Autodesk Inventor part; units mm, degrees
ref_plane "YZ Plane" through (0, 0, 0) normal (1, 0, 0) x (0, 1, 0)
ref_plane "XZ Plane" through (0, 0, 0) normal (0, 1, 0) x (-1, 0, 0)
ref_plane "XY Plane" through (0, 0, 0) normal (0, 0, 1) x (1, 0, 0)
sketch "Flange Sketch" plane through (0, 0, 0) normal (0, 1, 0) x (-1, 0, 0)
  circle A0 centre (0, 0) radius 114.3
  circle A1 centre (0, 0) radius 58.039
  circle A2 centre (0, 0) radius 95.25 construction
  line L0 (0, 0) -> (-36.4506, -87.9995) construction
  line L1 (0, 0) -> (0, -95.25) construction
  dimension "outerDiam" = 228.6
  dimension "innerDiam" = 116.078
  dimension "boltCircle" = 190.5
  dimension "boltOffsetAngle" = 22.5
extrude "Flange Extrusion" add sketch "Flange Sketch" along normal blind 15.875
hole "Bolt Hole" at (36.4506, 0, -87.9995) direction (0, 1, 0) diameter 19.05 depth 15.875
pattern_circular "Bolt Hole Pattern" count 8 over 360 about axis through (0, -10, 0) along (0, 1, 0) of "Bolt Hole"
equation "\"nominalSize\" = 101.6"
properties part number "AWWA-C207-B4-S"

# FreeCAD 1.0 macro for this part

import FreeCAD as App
import Part
import Sketcher
from FreeCAD import Vector
Q = App.Units.Quantity

doc = App.newDocument("Part")
params = doc.addObject("Spreadsheet::Sheet", "Params")
for row, (alias, value) in enumerate([
    ("sketch1_diameter", "9 in"),
    ("sketch1_diameter2", "4.57 in"),
    ("pad1_length", "0.625 in"),
    ("sketch2_diameter", "0.75 in"),
    ("hole_diameter", "0.75 in"),
    ("hole_depth", "0.625 in"),
], start=1):
    params.set(f"A{row}", alias)
    params.set(f"B{row}", "=" + value)
    params.setAlias(f"B{row}", alias)

body = doc.addObject("PartDesign::Body", "Body")

# Sketch on XZ plane
sketch1 = body.newObject("Sketcher::SketchObject", "Sketch")
sketch1.AttachmentSupport = (doc.getObject("XZ_Plane"), [""])
sketch1.MapMode = "FlatFace"
sketch1.addGeometry([
    Part.Circle(Vector(0, 0, 0), Vector(0, 0, 1), 114.3),
    Part.Circle(Vector(0, 0, 0), Vector(0, 0, 1), 58.039),
], False)
sketch1.addConstraint([
    Sketcher.Constraint("Coincident", 0, 3, -1, 1),
    Sketcher.Constraint("Coincident", 1, 3, -1, 1),
    Sketcher.Constraint("Diameter", 0, Q("9 in")),
    Sketcher.Constraint("Diameter", 1, Q("4.57 in")),
])
sketch1.setExpression("Constraints[2]", "Params.sketch1_diameter")
sketch1.setExpression("Constraints[3]", "Params.sketch1_diameter2")
pad1 = body.newObject("PartDesign::Pad", "Pad")
pad1.Profile = sketch1
pad1.setExpression("Length", "Params.pad1_length")
pad1.Reversed = True

# Sketch on XZ plane
sketch2 = body.newObject("Sketcher::SketchObject", "Sketch001")
sketch2.AttachmentSupport = (doc.getObject("XZ_Plane"), [""])
sketch2.MapMode = "FlatFace"
sketch2.addGeometry(Part.Circle(Vector(36.4506, -87.9995, 0), Vector(0, 0, 1), 9.525), False)
sketch2.addConstraint([
    Sketcher.Constraint("Diameter", 0, Q("0.75 in")),
    Sketcher.Constraint("DistanceX", -1, 1, 0, 3, 36.4506),
    Sketcher.Constraint("DistanceY", 0, 3, -1, 1, 87.9995),
])
sketch2.setExpression("Constraints[0]", "Params.sketch2_diameter")
doc.recompute()
hole = body.newObject("PartDesign::Hole", "Hole")
hole.Profile = sketch2
hole.ThreadType = "None"
hole.setExpression("Diameter", "Params.hole_diameter")
hole.DepthType = "Dimension"
hole.setExpression("Depth", "Params.hole_depth")
hole.DrillPoint = "Flat"
doc.recompute()

polarpattern = body.newObject("PartDesign::PolarPattern", "PolarPattern")
polarpattern.Originals = [hole]
polarpattern.Axis = (doc.getObject("Y_Axis"), [""])
polarpattern.Angle = 360
polarpattern.Occurrences = 8
body.Tip = polarpattern

doc.recompute()
